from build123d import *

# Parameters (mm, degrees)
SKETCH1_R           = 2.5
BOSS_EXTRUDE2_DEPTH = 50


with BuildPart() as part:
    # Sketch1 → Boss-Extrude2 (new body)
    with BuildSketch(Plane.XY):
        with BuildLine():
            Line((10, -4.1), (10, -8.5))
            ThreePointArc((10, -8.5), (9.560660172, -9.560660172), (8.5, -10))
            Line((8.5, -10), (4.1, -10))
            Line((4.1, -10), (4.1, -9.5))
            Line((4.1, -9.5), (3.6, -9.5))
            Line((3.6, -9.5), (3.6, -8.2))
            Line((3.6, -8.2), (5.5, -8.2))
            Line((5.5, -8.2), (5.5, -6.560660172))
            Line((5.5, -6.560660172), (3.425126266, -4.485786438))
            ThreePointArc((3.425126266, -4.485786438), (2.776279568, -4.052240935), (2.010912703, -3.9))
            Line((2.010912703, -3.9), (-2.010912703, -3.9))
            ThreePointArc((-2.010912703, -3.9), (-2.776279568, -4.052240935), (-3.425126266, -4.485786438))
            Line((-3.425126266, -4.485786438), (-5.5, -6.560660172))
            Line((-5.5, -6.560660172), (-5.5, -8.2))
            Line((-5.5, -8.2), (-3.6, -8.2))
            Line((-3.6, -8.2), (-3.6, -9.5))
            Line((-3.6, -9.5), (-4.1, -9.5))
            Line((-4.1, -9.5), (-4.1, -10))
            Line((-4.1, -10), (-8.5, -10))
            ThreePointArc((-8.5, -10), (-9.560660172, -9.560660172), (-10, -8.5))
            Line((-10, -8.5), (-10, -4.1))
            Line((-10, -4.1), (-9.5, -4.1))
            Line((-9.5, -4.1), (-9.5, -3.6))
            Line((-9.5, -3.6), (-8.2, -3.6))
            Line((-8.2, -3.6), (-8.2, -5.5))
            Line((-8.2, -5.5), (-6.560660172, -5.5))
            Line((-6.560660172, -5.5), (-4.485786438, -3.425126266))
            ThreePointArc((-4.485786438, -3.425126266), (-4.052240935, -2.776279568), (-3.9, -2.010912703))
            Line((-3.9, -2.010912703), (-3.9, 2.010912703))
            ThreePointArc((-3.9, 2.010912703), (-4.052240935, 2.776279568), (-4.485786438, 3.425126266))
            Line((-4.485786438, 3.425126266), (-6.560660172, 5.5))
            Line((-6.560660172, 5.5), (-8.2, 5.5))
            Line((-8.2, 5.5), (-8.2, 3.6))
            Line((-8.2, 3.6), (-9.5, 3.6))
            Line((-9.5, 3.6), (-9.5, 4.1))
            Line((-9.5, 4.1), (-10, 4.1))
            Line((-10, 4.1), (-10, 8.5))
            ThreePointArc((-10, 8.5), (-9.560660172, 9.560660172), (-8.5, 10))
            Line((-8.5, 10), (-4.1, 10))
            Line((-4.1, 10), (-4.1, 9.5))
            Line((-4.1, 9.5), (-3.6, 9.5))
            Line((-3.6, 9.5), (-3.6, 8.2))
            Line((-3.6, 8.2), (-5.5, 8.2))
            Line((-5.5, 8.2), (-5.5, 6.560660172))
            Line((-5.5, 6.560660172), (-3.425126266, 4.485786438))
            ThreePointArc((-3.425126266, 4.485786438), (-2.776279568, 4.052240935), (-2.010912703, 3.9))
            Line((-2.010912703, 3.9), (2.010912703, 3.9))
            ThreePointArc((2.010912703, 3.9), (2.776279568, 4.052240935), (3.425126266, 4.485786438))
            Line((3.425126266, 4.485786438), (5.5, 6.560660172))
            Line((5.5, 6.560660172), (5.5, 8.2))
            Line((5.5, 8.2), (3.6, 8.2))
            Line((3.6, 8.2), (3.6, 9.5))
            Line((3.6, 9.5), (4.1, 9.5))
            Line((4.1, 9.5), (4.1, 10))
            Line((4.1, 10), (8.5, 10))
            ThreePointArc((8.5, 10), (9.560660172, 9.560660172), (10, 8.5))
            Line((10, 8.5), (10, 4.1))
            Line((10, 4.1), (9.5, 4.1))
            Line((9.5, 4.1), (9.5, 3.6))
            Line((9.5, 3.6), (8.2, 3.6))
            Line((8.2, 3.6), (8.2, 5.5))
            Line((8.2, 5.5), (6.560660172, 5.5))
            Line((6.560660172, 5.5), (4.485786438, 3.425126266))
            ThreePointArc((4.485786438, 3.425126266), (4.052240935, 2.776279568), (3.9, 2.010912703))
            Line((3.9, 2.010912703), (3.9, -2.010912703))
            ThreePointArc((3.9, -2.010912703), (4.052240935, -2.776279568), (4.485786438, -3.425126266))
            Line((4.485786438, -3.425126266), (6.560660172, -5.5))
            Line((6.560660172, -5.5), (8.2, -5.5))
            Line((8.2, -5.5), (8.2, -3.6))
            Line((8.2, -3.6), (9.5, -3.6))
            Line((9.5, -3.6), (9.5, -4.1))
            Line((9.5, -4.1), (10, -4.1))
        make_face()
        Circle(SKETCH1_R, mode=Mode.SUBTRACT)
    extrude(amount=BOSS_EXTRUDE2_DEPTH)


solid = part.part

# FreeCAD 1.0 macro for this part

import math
import FreeCAD as App
import Part
import Sketcher

V = App.Vector
Q = App.Units.Quantity

doc = App.newDocument("Part")
body = doc.addObject("PartDesign::Body", "Body")

sketch1 = body.newObject("Sketcher::SketchObject", "Sketch")
sketch1.AttachmentSupport = (doc.getObject("XY_Plane"), [""])
sketch1.MapMode = "FlatFace"
sketch1.addGeometry(Part.LineSegment(V(10, -8.5, 0), V(10, -4.1, 0)), False)
sketch1.addGeometry(Part.LineSegment(V(10, -4.1, 0), V(9.5, -4.1, 0)), False)
sketch1.addGeometry(Part.LineSegment(V(9.5, -4.1, 0), V(9.5, -3.6, 0)), False)
sketch1.addGeometry(Part.LineSegment(V(9.5, -3.6, 0), V(8.2, -3.6, 0)), False)
sketch1.addGeometry(Part.LineSegment(V(8.2, -3.6, 0), V(8.2, -5.5, 0)), False)
sketch1.addGeometry(Part.LineSegment(V(8.2, -5.5, 0), V(6.56066, -5.5, 0)), False)
sketch1.addGeometry(Part.LineSegment(V(6.56066, -5.5, 0), V(4.485786, -3.425126, 0)), False)
sketch1.addGeometry(Part.ArcOfCircle(Part.Circle(V(5.9, -2.010913, 0), V(0, 0, 1), 2), math.radians(180), math.radians(225)), False)
sketch1.addGeometry(Part.LineSegment(V(3.9, -2.010913, 0), V(3.9, 2.010913, 0)), False)
sketch1.addGeometry(Part.ArcOfCircle(Part.Circle(V(5.9, 2.010913, 0), V(0, 0, 1), 2), math.radians(135), math.radians(180)), False)
sketch1.addGeometry(Part.LineSegment(V(4.485786, 3.425126, 0), V(6.56066, 5.5, 0)), False)
sketch1.addGeometry(Part.LineSegment(V(6.56066, 5.5, 0), V(8.2, 5.5, 0)), False)
sketch1.addGeometry(Part.LineSegment(V(8.2, 5.5, 0), V(8.2, 3.6, 0)), False)
sketch1.addGeometry(Part.LineSegment(V(8.2, 3.6, 0), V(9.5, 3.6, 0)), False)
sketch1.addGeometry(Part.LineSegment(V(9.5, 3.6, 0), V(9.5, 4.1, 0)), False)
sketch1.addGeometry(Part.LineSegment(V(9.5, 4.1, 0), V(10, 4.1, 0)), False)
sketch1.addGeometry(Part.LineSegment(V(10, 4.1, 0), V(10, 8.5, 0)), False)
sketch1.addGeometry(Part.ArcOfCircle(Part.Circle(V(8.5, 8.5, 0), V(0, 0, 1), 1.5), math.radians(0), math.radians(90)), False)
sketch1.addGeometry(Part.LineSegment(V(8.5, 10, 0), V(4.1, 10, 0)), False)
sketch1.addGeometry(Part.LineSegment(V(4.1, 10, 0), V(4.1, 9.5, 0)), False)
sketch1.addGeometry(Part.LineSegment(V(4.1, 9.5, 0), V(3.6, 9.5, 0)), False)
sketch1.addGeometry(Part.LineSegment(V(3.6, 9.5, 0), V(3.6, 8.2, 0)), False)
sketch1.addGeometry(Part.LineSegment(V(3.6, 8.2, 0), V(5.5, 8.2, 0)), False)
sketch1.addGeometry(Part.LineSegment(V(5.5, 8.2, 0), V(5.5, 6.56066, 0)), False)
sketch1.addGeometry(Part.LineSegment(V(5.5, 6.56066, 0), V(3.425126, 4.485786, 0)), False)
sketch1.addGeometry(Part.ArcOfCircle(Part.Circle(V(2.010913, 5.9, 0), V(0, 0, 1), 2), math.radians(-90), math.radians(-45)), False)
sketch1.addGeometry(Part.LineSegment(V(2.010913, 3.9, 0), V(-2.010913, 3.9, 0)), False)
sketch1.addGeometry(Part.ArcOfCircle(Part.Circle(V(-2.010913, 5.9, 0), V(0, 0, 1), 2), math.radians(-135), math.radians(-90)), False)
sketch1.addGeometry(Part.LineSegment(V(-3.425126, 4.485786, 0), V(-5.5, 6.56066, 0)), False)
sketch1.addGeometry(Part.LineSegment(V(-5.5, 6.56066, 0), V(-5.5, 8.2, 0)), False)
sketch1.addGeometry(Part.LineSegment(V(-5.5, 8.2, 0), V(-3.6, 8.2, 0)), False)
sketch1.addGeometry(Part.LineSegment(V(-3.6, 8.2, 0), V(-3.6, 9.5, 0)), False)
sketch1.addGeometry(Part.LineSegment(V(-3.6, 9.5, 0), V(-4.1, 9.5, 0)), False)
sketch1.addGeometry(Part.LineSegment(V(-4.1, 9.5, 0), V(-4.1, 10, 0)), False)
sketch1.addGeometry(Part.LineSegment(V(-4.1, 10, 0), V(-8.5, 10, 0)), False)
sketch1.addGeometry(Part.ArcOfCircle(Part.Circle(V(-8.5, 8.5, 0), V(0, 0, 1), 1.5), math.radians(90), math.radians(180)), False)
sketch1.addGeometry(Part.LineSegment(V(-10, 8.5, 0), V(-10, 4.1, 0)), False)
sketch1.addGeometry(Part.LineSegment(V(-10, 4.1, 0), V(-9.5, 4.1, 0)), False)
sketch1.addGeometry(Part.LineSegment(V(-9.5, 4.1, 0), V(-9.5, 3.6, 0)), False)
sketch1.addGeometry(Part.LineSegment(V(-9.5, 3.6, 0), V(-8.2, 3.6, 0)), False)
sketch1.addGeometry(Part.LineSegment(V(-8.2, 3.6, 0), V(-8.2, 5.5, 0)), False)
sketch1.addGeometry(Part.LineSegment(V(-8.2, 5.5, 0), V(-6.56066, 5.5, 0)), False)
sketch1.addGeometry(Part.LineSegment(V(-6.56066, 5.5, 0), V(-4.485786, 3.425126, 0)), False)
sketch1.addGeometry(Part.ArcOfCircle(Part.Circle(V(-5.9, 2.010913, 0), V(0, 0, 1), 2), math.radians(0), math.radians(45)), False)
sketch1.addGeometry(Part.LineSegment(V(-3.9, 2.010913, 0), V(-3.9, -2.010913, 0)), False)
sketch1.addGeometry(Part.ArcOfCircle(Part.Circle(V(-5.9, -2.010913, 0), V(0, 0, 1), 2), math.radians(-45), math.radians(0)), False)
sketch1.addGeometry(Part.LineSegment(V(-4.485786, -3.425126, 0), V(-6.56066, -5.5, 0)), False)
sketch1.addGeometry(Part.LineSegment(V(-6.56066, -5.5, 0), V(-8.2, -5.5, 0)), False)
sketch1.addGeometry(Part.LineSegment(V(-8.2, -5.5, 0), V(-8.2, -3.6, 0)), False)
sketch1.addGeometry(Part.LineSegment(V(-8.2, -3.6, 0), V(-9.5, -3.6, 0)), False)
sketch1.addGeometry(Part.LineSegment(V(-9.5, -3.6, 0), V(-9.5, -4.1, 0)), False)
sketch1.addGeometry(Part.LineSegment(V(-9.5, -4.1, 0), V(-10, -4.1, 0)), False)
sketch1.addGeometry(Part.LineSegment(V(-10, -4.1, 0), V(-10, -8.5, 0)), False)
sketch1.addGeometry(Part.ArcOfCircle(Part.Circle(V(-8.5, -8.5, 0), V(0, 0, 1), 1.5), math.radians(180), math.radians(270)), False)
sketch1.addGeometry(Part.LineSegment(V(-8.5, -10, 0), V(-4.1, -10, 0)), False)
sketch1.addGeometry(Part.LineSegment(V(-4.1, -10, 0), V(-4.1, -9.5, 0)), False)
sketch1.addGeometry(Part.LineSegment(V(-4.1, -9.5, 0), V(-3.6, -9.5, 0)), False)
sketch1.addGeometry(Part.LineSegment(V(-3.6, -9.5, 0), V(-3.6, -8.2, 0)), False)
sketch1.addGeometry(Part.LineSegment(V(-3.6, -8.2, 0), V(-5.5, -8.2, 0)), False)
sketch1.addGeometry(Part.LineSegment(V(-5.5, -8.2, 0), V(-5.5, -6.56066, 0)), False)
sketch1.addGeometry(Part.LineSegment(V(-5.5, -6.56066, 0), V(-3.425126, -4.485786, 0)), False)
sketch1.addGeometry(Part.ArcOfCircle(Part.Circle(V(-2.010913, -5.9, 0), V(0, 0, 1), 2), math.radians(90), math.radians(135)), False)
sketch1.addGeometry(Part.LineSegment(V(-2.010913, -3.9, 0), V(2.010913, -3.9, 0)), False)
sketch1.addGeometry(Part.ArcOfCircle(Part.Circle(V(2.010913, -5.9, 0), V(0, 0, 1), 2), math.radians(45), math.radians(90)), False)
sketch1.addGeometry(Part.LineSegment(V(3.425126, -4.485786, 0), V(5.5, -6.56066, 0)), False)
sketch1.addGeometry(Part.LineSegment(V(5.5, -6.56066, 0), V(5.5, -8.2, 0)), False)
sketch1.addGeometry(Part.LineSegment(V(5.5, -8.2, 0), V(3.6, -8.2, 0)), False)
sketch1.addGeometry(Part.LineSegment(V(3.6, -8.2, 0), V(3.6, -9.5, 0)), False)
sketch1.addGeometry(Part.LineSegment(V(3.6, -9.5, 0), V(4.1, -9.5, 0)), False)
sketch1.addGeometry(Part.LineSegment(V(4.1, -9.5, 0), V(4.1, -10, 0)), False)
sketch1.addGeometry(Part.LineSegment(V(4.1, -10, 0), V(8.5, -10, 0)), False)
sketch1.addGeometry(Part.ArcOfCircle(Part.Circle(V(8.5, -8.5, 0), V(0, 0, 1), 1.5), math.radians(-90), math.radians(0)), False)
sketch1.addGeometry(Part.Circle(V(0, 0, 0), V(0, 0, 1), 2.5), False)
sketch1.addConstraint(Sketcher.Constraint("Coincident", 0, 2, 1, 1))
sketch1.addConstraint(Sketcher.Constraint("Coincident", 1, 2, 2, 1))
sketch1.addConstraint(Sketcher.Constraint("Coincident", 2, 2, 3, 1))
sketch1.addConstraint(Sketcher.Constraint("Coincident", 3, 2, 4, 1))
sketch1.addConstraint(Sketcher.Constraint("Coincident", 4, 2, 5, 1))
sketch1.addConstraint(Sketcher.Constraint("Coincident", 5, 2, 6, 1))
sketch1.addConstraint(Sketcher.Constraint("Tangent", 6, 2, 7, 2))
sketch1.addConstraint(Sketcher.Constraint("Tangent", 7, 1, 8, 1))
sketch1.addConstraint(Sketcher.Constraint("Tangent", 8, 2, 9, 2))
sketch1.addConstraint(Sketcher.Constraint("Tangent", 9, 1, 10, 1))
sketch1.addConstraint(Sketcher.Constraint("Coincident", 10, 2, 11, 1))
sketch1.addConstraint(Sketcher.Constraint("Coincident", 11, 2, 12, 1))
sketch1.addConstraint(Sketcher.Constraint("Coincident", 12, 2, 13, 1))
sketch1.addConstraint(Sketcher.Constraint("Coincident", 13, 2, 14, 1))
sketch1.addConstraint(Sketcher.Constraint("Coincident", 14, 2, 15, 1))
sketch1.addConstraint(Sketcher.Constraint("Coincident", 15, 2, 16, 1))
sketch1.addConstraint(Sketcher.Constraint("Tangent", 16, 2, 17, 1))
sketch1.addConstraint(Sketcher.Constraint("Tangent", 17, 2, 18, 1))
sketch1.addConstraint(Sketcher.Constraint("Coincident", 18, 2, 19, 1))
sketch1.addConstraint(Sketcher.Constraint("Coincident", 19, 2, 20, 1))
sketch1.addConstraint(Sketcher.Constraint("Coincident", 20, 2, 21, 1))
sketch1.addConstraint(Sketcher.Constraint("Coincident", 21, 2, 22, 1))
sketch1.addConstraint(Sketcher.Constraint("Coincident", 22, 2, 23, 1))
sketch1.addConstraint(Sketcher.Constraint("Coincident", 23, 2, 24, 1))
sketch1.addConstraint(Sketcher.Constraint("Tangent", 24, 2, 25, 2))
sketch1.addConstraint(Sketcher.Constraint("Tangent", 25, 1, 26, 1))
sketch1.addConstraint(Sketcher.Constraint("Tangent", 26, 2, 27, 2))
sketch1.addConstraint(Sketcher.Constraint("Tangent", 27, 1, 28, 1))
sketch1.addConstraint(Sketcher.Constraint("Coincident", 28, 2, 29, 1))
sketch1.addConstraint(Sketcher.Constraint("Coincident", 29, 2, 30, 1))
sketch1.addConstraint(Sketcher.Constraint("Coincident", 30, 2, 31, 1))
sketch1.addConstraint(Sketcher.Constraint("Coincident", 31, 2, 32, 1))
sketch1.addConstraint(Sketcher.Constraint("Coincident", 32, 2, 33, 1))
sketch1.addConstraint(Sketcher.Constraint("Coincident", 33, 2, 34, 1))
sketch1.addConstraint(Sketcher.Constraint("Tangent", 34, 2, 35, 1))
sketch1.addConstraint(Sketcher.Constraint("Tangent", 35, 2, 36, 1))
sketch1.addConstraint(Sketcher.Constraint("Coincident", 36, 2, 37, 1))
sketch1.addConstraint(Sketcher.Constraint("Coincident", 37, 2, 38, 1))
sketch1.addConstraint(Sketcher.Constraint("Coincident", 38, 2, 39, 1))
sketch1.addConstraint(Sketcher.Constraint("Coincident", 39, 2, 40, 1))
sketch1.addConstraint(Sketcher.Constraint("Coincident", 40, 2, 41, 1))
sketch1.addConstraint(Sketcher.Constraint("Coincident", 41, 2, 42, 1))
sketch1.addConstraint(Sketcher.Constraint("Tangent", 42, 2, 43, 2))
sketch1.addConstraint(Sketcher.Constraint("Tangent", 43, 1, 44, 1))
sketch1.addConstraint(Sketcher.Constraint("Tangent", 44, 2, 45, 2))
sketch1.addConstraint(Sketcher.Constraint("Tangent", 45, 1, 46, 1))
sketch1.addConstraint(Sketcher.Constraint("Coincident", 46, 2, 47, 1))
sketch1.addConstraint(Sketcher.Constraint("Coincident", 47, 2, 48, 1))
sketch1.addConstraint(Sketcher.Constraint("Coincident", 48, 2, 49, 1))
sketch1.addConstraint(Sketcher.Constraint("Coincident", 49, 2, 50, 1))
sketch1.addConstraint(Sketcher.Constraint("Coincident", 50, 2, 51, 1))
sketch1.addConstraint(Sketcher.Constraint("Coincident", 51, 2, 52, 1))
sketch1.addConstraint(Sketcher.Constraint("Tangent", 52, 2, 53, 1))
sketch1.addConstraint(Sketcher.Constraint("Tangent", 53, 2, 54, 1))
sketch1.addConstraint(Sketcher.Constraint("Coincident", 54, 2, 55, 1))
sketch1.addConstraint(Sketcher.Constraint("Coincident", 55, 2, 56, 1))
sketch1.addConstraint(Sketcher.Constraint("Coincident", 56, 2, 57, 1))
sketch1.addConstraint(Sketcher.Constraint("Coincident", 57, 2, 58, 1))
sketch1.addConstraint(Sketcher.Constraint("Coincident", 58, 2, 59, 1))
sketch1.addConstraint(Sketcher.Constraint("Coincident", 59, 2, 60, 1))
sketch1.addConstraint(Sketcher.Constraint("Tangent", 60, 2, 61, 2))
sketch1.addConstraint(Sketcher.Constraint("Tangent", 61, 1, 62, 1))
sketch1.addConstraint(Sketcher.Constraint("Tangent", 62, 2, 63, 2))
sketch1.addConstraint(Sketcher.Constraint("Tangent", 63, 1, 64, 1))
sketch1.addConstraint(Sketcher.Constraint("Coincident", 64, 2, 65, 1))
sketch1.addConstraint(Sketcher.Constraint("Coincident", 65, 2, 66, 1))
sketch1.addConstraint(Sketcher.Constraint("Coincident", 66, 2, 67, 1))
sketch1.addConstraint(Sketcher.Constraint("Coincident", 67, 2, 68, 1))
sketch1.addConstraint(Sketcher.Constraint("Coincident", 68, 2, 69, 1))
sketch1.addConstraint(Sketcher.Constraint("Coincident", 69, 2, 70, 1))
sketch1.addConstraint(Sketcher.Constraint("Tangent", 70, 2, 71, 1))
sketch1.addConstraint(Sketcher.Constraint("Tangent", 71, 2, 0, 1))
sketch1.addConstraint(Sketcher.Constraint("Vertical", 0))
sketch1.addConstraint(Sketcher.Constraint("Horizontal", 1))
sketch1.addConstraint(Sketcher.Constraint("Vertical", 2))
sketch1.addConstraint(Sketcher.Constraint("Horizontal", 3))
sketch1.addConstraint(Sketcher.Constraint("Vertical", 4))
sketch1.addConstraint(Sketcher.Constraint("Horizontal", 5))
sketch1.addConstraint(Sketcher.Constraint("Vertical", 8))
sketch1.addConstraint(Sketcher.Constraint("Horizontal", 11))
sketch1.addConstraint(Sketcher.Constraint("Vertical", 12))
sketch1.addConstraint(Sketcher.Constraint("Horizontal", 13))
sketch1.addConstraint(Sketcher.Constraint("Vertical", 14))
sketch1.addConstraint(Sketcher.Constraint("Horizontal", 15))
sketch1.addConstraint(Sketcher.Constraint("Vertical", 16))
sketch1.addConstraint(Sketcher.Constraint("Horizontal", 18))
sketch1.addConstraint(Sketcher.Constraint("Vertical", 19))
sketch1.addConstraint(Sketcher.Constraint("Horizontal", 20))
sketch1.addConstraint(Sketcher.Constraint("Vertical", 21))
sketch1.addConstraint(Sketcher.Constraint("Horizontal", 22))
sketch1.addConstraint(Sketcher.Constraint("Vertical", 23))
sketch1.addConstraint(Sketcher.Constraint("Horizontal", 26))
sketch1.addConstraint(Sketcher.Constraint("Vertical", 29))
sketch1.addConstraint(Sketcher.Constraint("Horizontal", 30))
sketch1.addConstraint(Sketcher.Constraint("Vertical", 31))
sketch1.addConstraint(Sketcher.Constraint("Horizontal", 32))
sketch1.addConstraint(Sketcher.Constraint("Vertical", 33))
sketch1.addConstraint(Sketcher.Constraint("Horizontal", 34))
sketch1.addConstraint(Sketcher.Constraint("Vertical", 36))
sketch1.addConstraint(Sketcher.Constraint("Horizontal", 37))
sketch1.addConstraint(Sketcher.Constraint("Vertical", 38))
sketch1.addConstraint(Sketcher.Constraint("Horizontal", 39))
sketch1.addConstraint(Sketcher.Constraint("Vertical", 40))
sketch1.addConstraint(Sketcher.Constraint("Horizontal", 41))
sketch1.addConstraint(Sketcher.Constraint("Vertical", 44))
sketch1.addConstraint(Sketcher.Constraint("Horizontal", 47))
sketch1.addConstraint(Sketcher.Constraint("Vertical", 48))
sketch1.addConstraint(Sketcher.Constraint("Horizontal", 49))
sketch1.addConstraint(Sketcher.Constraint("Vertical", 50))
sketch1.addConstraint(Sketcher.Constraint("Horizontal", 51))
sketch1.addConstraint(Sketcher.Constraint("Vertical", 52))
sketch1.addConstraint(Sketcher.Constraint("Horizontal", 54))
sketch1.addConstraint(Sketcher.Constraint("Vertical", 55))
sketch1.addConstraint(Sketcher.Constraint("Horizontal", 56))
sketch1.addConstraint(Sketcher.Constraint("Vertical", 57))
sketch1.addConstraint(Sketcher.Constraint("Horizontal", 58))
sketch1.addConstraint(Sketcher.Constraint("Vertical", 59))
sketch1.addConstraint(Sketcher.Constraint("Horizontal", 62))
sketch1.addConstraint(Sketcher.Constraint("Vertical", 65))
sketch1.addConstraint(Sketcher.Constraint("Horizontal", 66))
sketch1.addConstraint(Sketcher.Constraint("Vertical", 67))
sketch1.addConstraint(Sketcher.Constraint("Horizontal", 68))
sketch1.addConstraint(Sketcher.Constraint("Vertical", 69))
sketch1.addConstraint(Sketcher.Constraint("Horizontal", 70))
sketch1.addConstraint(Sketcher.Constraint("Coincident", 72, 3, -1, 1))
sketch1.addConstraint(Sketcher.Constraint("Equal", 7, 9))
sketch1.addConstraint(Sketcher.Constraint("Equal", 9, 25))
sketch1.addConstraint(Sketcher.Constraint("Equal", 25, 27))
sketch1.addConstraint(Sketcher.Constraint("Equal", 17, 35))
sketch1.addConstraint(Sketcher.Constraint("Equal", 27, 43))
sketch1.addConstraint(Sketcher.Constraint("Equal", 43, 45))
sketch1.addConstraint(Sketcher.Constraint("Equal", 35, 53))
sketch1.addConstraint(Sketcher.Constraint("Equal", 45, 61))
sketch1.addConstraint(Sketcher.Constraint("Equal", 61, 63))
sketch1.addConstraint(Sketcher.Constraint("Equal", 53, 71))
sketch1.addConstraint(Sketcher.Constraint("Symmetric", 7, 3, 43, 3, -1, 1))
sketch1.addConstraint(Sketcher.Constraint("Symmetric", 17, 3, 53, 3, -1, 1))
sketch1.addConstraint(Sketcher.Constraint("Symmetric", 25, 3, 61, 3, -1, 1))
sketch1.addConstraint(Sketcher.Constraint("Symmetric", 35, 3, 71, 3, -1, 1))
sketch1.addConstraint(Sketcher.Constraint("Symmetric", 1, 2, 37, 2, -1, 1))
sketch1.addConstraint(Sketcher.Constraint("Symmetric", 3, 2, 39, 2, -1, 1))
sketch1.addConstraint(Sketcher.Constraint("Symmetric", 5, 2, 41, 2, -1, 1))
sketch1.addConstraint(Sketcher.Constraint("Symmetric", 9, 1, 45, 1, -1, 1))
sketch1.addConstraint(Sketcher.Constraint("Symmetric", 11, 2, 47, 2, -1, 1))
sketch1.addConstraint(Sketcher.Constraint("Symmetric", 13, 2, 49, 2, -1, 1))
sketch1.addConstraint(Sketcher.Constraint("Symmetric", 19, 2, 55, 2, -1, 1))
sketch1.addConstraint(Sketcher.Constraint("Symmetric", 21, 2, 57, 2, -1, 1))
sketch1.addConstraint(Sketcher.Constraint("Symmetric", 23, 2, 59, 2, -1, 1))
sketch1.addConstraint(Sketcher.Constraint("Symmetric", 27, 1, 63, 1, -1, 1))
sketch1.addConstraint(Sketcher.Constraint("Symmetric", 29, 2, 65, 2, -1, 1))
sketch1.addConstraint(Sketcher.Constraint("Symmetric", 31, 2, 67, 2, -1, 1))
sketch1.addConstraint(Sketcher.Constraint("Symmetric", 17, 3, 35, 3, -2))
sketch1.addConstraint(Sketcher.Constraint("Symmetric", 24, 2, 27, 1, -2))
sketch1.addConstraint(Sketcher.Constraint("Symmetric", 22, 2, 29, 2, -2))
sketch1.addConstraint(Sketcher.Constraint("Symmetric", 20, 2, 31, 2, -2))
sketch1.addConstraint(Sketcher.Constraint("Symmetric", 14, 2, 37, 2, -2))
sketch1.addConstraint(Sketcher.Constraint("Symmetric", 12, 2, 39, 2, -2))
sketch1.addConstraint(Sketcher.Constraint("Symmetric", 10, 2, 41, 2, -2))
sketch1.addConstraint(Sketcher.Constraint("Perpendicular", 6, 10))
sketch1.addConstraint(Sketcher.Constraint("Parallel", 10, 24))
sketch1.addConstraint(Sketcher.Constraint("Perpendicular", 24, 28))
sketch1.addConstraint(Sketcher.Constraint("Horizontal", 1, 2, 50, 2))
sketch1.addConstraint(Sketcher.Constraint("Vertical", 33, 2, 54, 2))
sketch1.addConstraint(Sketcher.Constraint("Vertical", 19, 2, 68, 2))
sketch1.addConstraint(Sketcher.Constraint("Equal", 15, 20))
sketch1.addConstraint(Sketcher.Constraint("Equal", 70, 0))
sketch1.addConstraint(Sketcher.Constraint("Equal", 68, 2))
sketch1.addConstraint(Sketcher.Constraint("Equal", 66, 4))
sketch1.addConstraint(Sketcher.Constraint("Equal", 62, 8))
sketch1.addConstraint(Sketcher.Constraint("Equal", 14, 19))
sketch1.addConstraint(Sketcher.Constraint("Equal", 49, 21))
sketch1.addConstraint(Sketcher.Constraint("Equal", 47, 23))
sketch1.addConstraint(Sketcher.Constraint("Equal", 10, 24))
sketch1.addConstraint(Sketcher.Constraint("Diameter", 72, Q("5 mm")))
sketch1.addConstraint(Sketcher.Constraint("Radius", 7, Q("2 mm")))
sketch1.addConstraint(Sketcher.Constraint("Radius", 17, Q("1.5 mm")))
sketch1.addConstraint(Sketcher.Constraint("DistanceX", 1, 2, 1, 1, Q("0.5 mm")))
sketch1.addConstraint(Sketcher.Constraint("DistanceX", 3, 2, 3, 1, Q("1.3 mm")))
sketch1.addConstraint(Sketcher.Constraint("DistanceX", 18, 2, 18, 1, Q("4.4 mm")))
sketch1.addConstraint(Sketcher.Constraint("DistanceX", 22, 1, 22, 2, Q("1.9 mm")))
sketch1.addConstraint(Sketcher.Constraint("DistanceX", -1, 1, 0, 2, Q("10 mm")))
sketch1.addConstraint(Sketcher.Constraint("DistanceX", -1, 1, 7, 3, Q("5.9 mm")))
sketch1.addConstraint(Sketcher.Constraint("DistanceX", 5, 2, 5, 1, Q("1.63934 mm")))
pad1 = body.newObject("PartDesign::Pad", "Pad")
pad1.Profile = sketch1
pad1.Length = 50

doc.recompute()
